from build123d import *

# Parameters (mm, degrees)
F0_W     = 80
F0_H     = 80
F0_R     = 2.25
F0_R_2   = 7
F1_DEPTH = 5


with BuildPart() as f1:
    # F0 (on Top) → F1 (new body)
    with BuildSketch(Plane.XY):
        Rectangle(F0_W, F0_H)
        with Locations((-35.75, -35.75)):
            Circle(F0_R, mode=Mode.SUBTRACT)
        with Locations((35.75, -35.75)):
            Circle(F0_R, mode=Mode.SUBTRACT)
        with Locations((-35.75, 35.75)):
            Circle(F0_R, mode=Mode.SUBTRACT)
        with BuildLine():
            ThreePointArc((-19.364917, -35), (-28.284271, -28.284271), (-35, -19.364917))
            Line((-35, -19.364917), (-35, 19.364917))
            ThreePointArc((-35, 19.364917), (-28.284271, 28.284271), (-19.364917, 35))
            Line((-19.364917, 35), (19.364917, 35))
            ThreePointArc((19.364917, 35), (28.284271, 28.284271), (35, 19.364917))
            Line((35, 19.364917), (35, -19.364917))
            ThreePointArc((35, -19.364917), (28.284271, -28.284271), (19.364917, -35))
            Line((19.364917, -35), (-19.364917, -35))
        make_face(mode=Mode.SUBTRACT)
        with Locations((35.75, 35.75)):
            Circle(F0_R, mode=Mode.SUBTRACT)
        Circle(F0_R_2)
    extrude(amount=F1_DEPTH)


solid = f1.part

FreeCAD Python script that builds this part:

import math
import FreeCAD as App
import Part
import Sketcher

doc = App.newDocument("Part")
body = doc.addObject("PartDesign::Body", "Body")
body.AllowCompound = True

sketch1 = doc.addObject("Sketcher::SketchObject", "Sketch")
body.addObject(sketch1)
sketch1.AttachmentSupport = (doc.XY_Plane, [""])
sketch1.MapMode = "FlatFace"
sketch1.addGeometry(Part.LineSegment(App.Vector(-40, 40, 0), App.Vector(-40, -40, 0)), False)
sketch1.addGeometry(Part.LineSegment(App.Vector(-40, -40, 0), App.Vector(40, -40, 0)), False)
sketch1.addGeometry(Part.LineSegment(App.Vector(40, -40, 0), App.Vector(40, 40, 0)), False)
sketch1.addGeometry(Part.LineSegment(App.Vector(40, 40, 0), App.Vector(-40, 40, 0)), False)
sketch1.addGeometry(Part.Circle(App.Vector(-35.8, -35.8, 0), App.Vector(0, 0, 1), 2.2), False)
sketch1.addGeometry(Part.Circle(App.Vector(35.8, -35.8, 0), App.Vector(0, 0, 1), 2.2), False)
sketch1.addGeometry(Part.Circle(App.Vector(-35.8, 35.8, 0), App.Vector(0, 0, 1), 2.2), False)
sketch1.addGeometry(Part.LineSegment(App.Vector(19.4, -35, 0), App.Vector(-19.4, -35, 0)), False)
sketch1.addGeometry(Part.ArcOfCircle(Part.Circle(App.Vector(0, 0, 0), App.Vector(0, 0, 1), 40), math.radians(-151), math.radians(-119)), False)
sketch1.addGeometry(Part.LineSegment(App.Vector(-35, -19.4, 0), App.Vector(-35, 19.4, 0)), False)
sketch1.addGeometry(Part.ArcOfCircle(Part.Circle(App.Vector(0, 0, 0), App.Vector(0, 0, 1), 40), math.radians(119), math.radians(151)), False)
sketch1.addGeometry(Part.LineSegment(App.Vector(-19.4, 35, 0), App.Vector(19.4, 35, 0)), False)
sketch1.addGeometry(Part.ArcOfCircle(Part.Circle(App.Vector(0, 0, 0), App.Vector(0, 0, 1), 40), math.radians(29), math.radians(61)), False)
sketch1.addGeometry(Part.LineSegment(App.Vector(35, 19.4, 0), App.Vector(35, -19.4, 0)), False)
sketch1.addGeometry(Part.ArcOfCircle(Part.Circle(App.Vector(0, 0, 0), App.Vector(0, 0, 1), 40), math.radians(-61), math.radians(-29)), False)
sketch1.addGeometry(Part.Circle(App.Vector(35.8, 35.8, 0), App.Vector(0, 0, 1), 2.2), False)
sketch1.addGeometry(Part.Circle(App.Vector(0, 0, 0), App.Vector(0, 0, 1), 7), False)
sketch1.addConstraint(Sketcher.Constraint("Coincident", 0, 2, 1, 1))
sketch1.addConstraint(Sketcher.Constraint("Coincident", 1, 2, 2, 1))
sketch1.addConstraint(Sketcher.Constraint("Coincident", 2, 2, 3, 1))
sketch1.addConstraint(Sketcher.Constraint("Coincident", 3, 2, 0, 1))
sketch1.addConstraint(Sketcher.Constraint("Coincident", 7, 2, 8, 2))
sketch1.addConstraint(Sketcher.Constraint("Coincident", 8, 1, 9, 1))
sketch1.addConstraint(Sketcher.Constraint("Coincident", 9, 2, 10, 2))
sketch1.addConstraint(Sketcher.Constraint("Coincident", 10, 1, 11, 1))
sketch1.addConstraint(Sketcher.Constraint("Coincident", 11, 2, 12, 2))
sketch1.addConstraint(Sketcher.Constraint("Coincident", 12, 1, 13, 1))
sketch1.addConstraint(Sketcher.Constraint("Coincident", 13, 2, 14, 2))
sketch1.addConstraint(Sketcher.Constraint("Coincident", 14, 1, 7, 1))
sketch1.addConstraint(Sketcher.Constraint("Vertical", 0))
sketch1.addConstraint(Sketcher.Constraint("Horizontal", 1))
sketch1.addConstraint(Sketcher.Constraint("Vertical", 2))
sketch1.addConstraint(Sketcher.Constraint("Horizontal", 3))
sketch1.addConstraint(Sketcher.Constraint("Horizontal", 7))
sketch1.addConstraint(Sketcher.Constraint("Vertical", 9))
sketch1.addConstraint(Sketcher.Constraint("Horizontal", 11))
sketch1.addConstraint(Sketcher.Constraint("Vertical", 13))
sketch1.addConstraint(Sketcher.Constraint("Coincident", 16, 3, -1, 1))
sketch1.addConstraint(Sketcher.Constraint("Equal", 4, 5))
sketch1.addConstraint(Sketcher.Constraint("Equal", 5, 6))
sketch1.addConstraint(Sketcher.Constraint("Equal", 8, 10))
sketch1.addConstraint(Sketcher.Constraint("Equal", 10, 12))
sketch1.addConstraint(Sketcher.Constraint("Equal", 12, 14))
sketch1.addConstraint(Sketcher.Constraint("Equal", 6, 15))
sketch1.addConstraint(Sketcher.Constraint("Symmetric", 5, 3, 6, 3, -1, 1))
sketch1.addConstraint(Sketcher.Constraint("Symmetric", 8, 3, 12, 3, -1, 1))
sketch1.addConstraint(Sketcher.Constraint("Symmetric", 10, 3, 14, 3, -1, 1))
sketch1.addConstraint(Sketcher.Constraint("Symmetric", 4, 3, 15, 3, -1, 1))
sketch1.addConstraint(Sketcher.Constraint("Symmetric", 0, 2, 2, 2, -1, 1))
sketch1.addConstraint(Sketcher.Constraint("Symmetric", 4, 3, 5, 3, -2))
sketch1.addConstraint(Sketcher.Constraint("Symmetric", 10, 3, 12, 3, -2))
sketch1.addConstraint(Sketcher.Constraint("Horizontal", 9, 2, 12, 1))
sketch1.addConstraint(Sketcher.Constraint("Vertical", 7, 2, 10, 1))
sketch1.addConstraint(Sketcher.Constraint("Equal", 3, 0))
sketch1.addConstraint(Sketcher.Constraint("Equal", 11, 9))
sketch1.addConstraint(Sketcher.Constraint("Diameter", 16, 14.0))
sketch1.addConstraint(Sketcher.Constraint("Diameter", 4, 4.5))
sketch1.addConstraint(Sketcher.Constraint("DistanceX", 1, 1, 1, 2, 80.0))
sketch1.addConstraint(Sketcher.Constraint("DistanceY", 7, 2, -1, 1, 35.0))
sketch1.addConstraint(Sketcher.Constraint("DistanceX", 8, 1, -1, 1, 35.0))
sketch1.addConstraint(Sketcher.Constraint("DistanceX", 4, 3, 5, 3, 71.5))
sketch1.addConstraint(Sketcher.Constraint("DistanceY", 4, 3, 6, 3, 71.5))
sketch1.addConstraint(Sketcher.Constraint("Radius", 8, 40.000012))
sketch1.addConstraint(Sketcher.Constraint("DistanceX", 7, 2, 7, 1, 38.729834))
pad1 = doc.addObject("PartDesign::Pad", "Pad")
body.addObject(pad1)
pad1.Profile = sketch1
pad1.Length = 5

doc.recompute()
